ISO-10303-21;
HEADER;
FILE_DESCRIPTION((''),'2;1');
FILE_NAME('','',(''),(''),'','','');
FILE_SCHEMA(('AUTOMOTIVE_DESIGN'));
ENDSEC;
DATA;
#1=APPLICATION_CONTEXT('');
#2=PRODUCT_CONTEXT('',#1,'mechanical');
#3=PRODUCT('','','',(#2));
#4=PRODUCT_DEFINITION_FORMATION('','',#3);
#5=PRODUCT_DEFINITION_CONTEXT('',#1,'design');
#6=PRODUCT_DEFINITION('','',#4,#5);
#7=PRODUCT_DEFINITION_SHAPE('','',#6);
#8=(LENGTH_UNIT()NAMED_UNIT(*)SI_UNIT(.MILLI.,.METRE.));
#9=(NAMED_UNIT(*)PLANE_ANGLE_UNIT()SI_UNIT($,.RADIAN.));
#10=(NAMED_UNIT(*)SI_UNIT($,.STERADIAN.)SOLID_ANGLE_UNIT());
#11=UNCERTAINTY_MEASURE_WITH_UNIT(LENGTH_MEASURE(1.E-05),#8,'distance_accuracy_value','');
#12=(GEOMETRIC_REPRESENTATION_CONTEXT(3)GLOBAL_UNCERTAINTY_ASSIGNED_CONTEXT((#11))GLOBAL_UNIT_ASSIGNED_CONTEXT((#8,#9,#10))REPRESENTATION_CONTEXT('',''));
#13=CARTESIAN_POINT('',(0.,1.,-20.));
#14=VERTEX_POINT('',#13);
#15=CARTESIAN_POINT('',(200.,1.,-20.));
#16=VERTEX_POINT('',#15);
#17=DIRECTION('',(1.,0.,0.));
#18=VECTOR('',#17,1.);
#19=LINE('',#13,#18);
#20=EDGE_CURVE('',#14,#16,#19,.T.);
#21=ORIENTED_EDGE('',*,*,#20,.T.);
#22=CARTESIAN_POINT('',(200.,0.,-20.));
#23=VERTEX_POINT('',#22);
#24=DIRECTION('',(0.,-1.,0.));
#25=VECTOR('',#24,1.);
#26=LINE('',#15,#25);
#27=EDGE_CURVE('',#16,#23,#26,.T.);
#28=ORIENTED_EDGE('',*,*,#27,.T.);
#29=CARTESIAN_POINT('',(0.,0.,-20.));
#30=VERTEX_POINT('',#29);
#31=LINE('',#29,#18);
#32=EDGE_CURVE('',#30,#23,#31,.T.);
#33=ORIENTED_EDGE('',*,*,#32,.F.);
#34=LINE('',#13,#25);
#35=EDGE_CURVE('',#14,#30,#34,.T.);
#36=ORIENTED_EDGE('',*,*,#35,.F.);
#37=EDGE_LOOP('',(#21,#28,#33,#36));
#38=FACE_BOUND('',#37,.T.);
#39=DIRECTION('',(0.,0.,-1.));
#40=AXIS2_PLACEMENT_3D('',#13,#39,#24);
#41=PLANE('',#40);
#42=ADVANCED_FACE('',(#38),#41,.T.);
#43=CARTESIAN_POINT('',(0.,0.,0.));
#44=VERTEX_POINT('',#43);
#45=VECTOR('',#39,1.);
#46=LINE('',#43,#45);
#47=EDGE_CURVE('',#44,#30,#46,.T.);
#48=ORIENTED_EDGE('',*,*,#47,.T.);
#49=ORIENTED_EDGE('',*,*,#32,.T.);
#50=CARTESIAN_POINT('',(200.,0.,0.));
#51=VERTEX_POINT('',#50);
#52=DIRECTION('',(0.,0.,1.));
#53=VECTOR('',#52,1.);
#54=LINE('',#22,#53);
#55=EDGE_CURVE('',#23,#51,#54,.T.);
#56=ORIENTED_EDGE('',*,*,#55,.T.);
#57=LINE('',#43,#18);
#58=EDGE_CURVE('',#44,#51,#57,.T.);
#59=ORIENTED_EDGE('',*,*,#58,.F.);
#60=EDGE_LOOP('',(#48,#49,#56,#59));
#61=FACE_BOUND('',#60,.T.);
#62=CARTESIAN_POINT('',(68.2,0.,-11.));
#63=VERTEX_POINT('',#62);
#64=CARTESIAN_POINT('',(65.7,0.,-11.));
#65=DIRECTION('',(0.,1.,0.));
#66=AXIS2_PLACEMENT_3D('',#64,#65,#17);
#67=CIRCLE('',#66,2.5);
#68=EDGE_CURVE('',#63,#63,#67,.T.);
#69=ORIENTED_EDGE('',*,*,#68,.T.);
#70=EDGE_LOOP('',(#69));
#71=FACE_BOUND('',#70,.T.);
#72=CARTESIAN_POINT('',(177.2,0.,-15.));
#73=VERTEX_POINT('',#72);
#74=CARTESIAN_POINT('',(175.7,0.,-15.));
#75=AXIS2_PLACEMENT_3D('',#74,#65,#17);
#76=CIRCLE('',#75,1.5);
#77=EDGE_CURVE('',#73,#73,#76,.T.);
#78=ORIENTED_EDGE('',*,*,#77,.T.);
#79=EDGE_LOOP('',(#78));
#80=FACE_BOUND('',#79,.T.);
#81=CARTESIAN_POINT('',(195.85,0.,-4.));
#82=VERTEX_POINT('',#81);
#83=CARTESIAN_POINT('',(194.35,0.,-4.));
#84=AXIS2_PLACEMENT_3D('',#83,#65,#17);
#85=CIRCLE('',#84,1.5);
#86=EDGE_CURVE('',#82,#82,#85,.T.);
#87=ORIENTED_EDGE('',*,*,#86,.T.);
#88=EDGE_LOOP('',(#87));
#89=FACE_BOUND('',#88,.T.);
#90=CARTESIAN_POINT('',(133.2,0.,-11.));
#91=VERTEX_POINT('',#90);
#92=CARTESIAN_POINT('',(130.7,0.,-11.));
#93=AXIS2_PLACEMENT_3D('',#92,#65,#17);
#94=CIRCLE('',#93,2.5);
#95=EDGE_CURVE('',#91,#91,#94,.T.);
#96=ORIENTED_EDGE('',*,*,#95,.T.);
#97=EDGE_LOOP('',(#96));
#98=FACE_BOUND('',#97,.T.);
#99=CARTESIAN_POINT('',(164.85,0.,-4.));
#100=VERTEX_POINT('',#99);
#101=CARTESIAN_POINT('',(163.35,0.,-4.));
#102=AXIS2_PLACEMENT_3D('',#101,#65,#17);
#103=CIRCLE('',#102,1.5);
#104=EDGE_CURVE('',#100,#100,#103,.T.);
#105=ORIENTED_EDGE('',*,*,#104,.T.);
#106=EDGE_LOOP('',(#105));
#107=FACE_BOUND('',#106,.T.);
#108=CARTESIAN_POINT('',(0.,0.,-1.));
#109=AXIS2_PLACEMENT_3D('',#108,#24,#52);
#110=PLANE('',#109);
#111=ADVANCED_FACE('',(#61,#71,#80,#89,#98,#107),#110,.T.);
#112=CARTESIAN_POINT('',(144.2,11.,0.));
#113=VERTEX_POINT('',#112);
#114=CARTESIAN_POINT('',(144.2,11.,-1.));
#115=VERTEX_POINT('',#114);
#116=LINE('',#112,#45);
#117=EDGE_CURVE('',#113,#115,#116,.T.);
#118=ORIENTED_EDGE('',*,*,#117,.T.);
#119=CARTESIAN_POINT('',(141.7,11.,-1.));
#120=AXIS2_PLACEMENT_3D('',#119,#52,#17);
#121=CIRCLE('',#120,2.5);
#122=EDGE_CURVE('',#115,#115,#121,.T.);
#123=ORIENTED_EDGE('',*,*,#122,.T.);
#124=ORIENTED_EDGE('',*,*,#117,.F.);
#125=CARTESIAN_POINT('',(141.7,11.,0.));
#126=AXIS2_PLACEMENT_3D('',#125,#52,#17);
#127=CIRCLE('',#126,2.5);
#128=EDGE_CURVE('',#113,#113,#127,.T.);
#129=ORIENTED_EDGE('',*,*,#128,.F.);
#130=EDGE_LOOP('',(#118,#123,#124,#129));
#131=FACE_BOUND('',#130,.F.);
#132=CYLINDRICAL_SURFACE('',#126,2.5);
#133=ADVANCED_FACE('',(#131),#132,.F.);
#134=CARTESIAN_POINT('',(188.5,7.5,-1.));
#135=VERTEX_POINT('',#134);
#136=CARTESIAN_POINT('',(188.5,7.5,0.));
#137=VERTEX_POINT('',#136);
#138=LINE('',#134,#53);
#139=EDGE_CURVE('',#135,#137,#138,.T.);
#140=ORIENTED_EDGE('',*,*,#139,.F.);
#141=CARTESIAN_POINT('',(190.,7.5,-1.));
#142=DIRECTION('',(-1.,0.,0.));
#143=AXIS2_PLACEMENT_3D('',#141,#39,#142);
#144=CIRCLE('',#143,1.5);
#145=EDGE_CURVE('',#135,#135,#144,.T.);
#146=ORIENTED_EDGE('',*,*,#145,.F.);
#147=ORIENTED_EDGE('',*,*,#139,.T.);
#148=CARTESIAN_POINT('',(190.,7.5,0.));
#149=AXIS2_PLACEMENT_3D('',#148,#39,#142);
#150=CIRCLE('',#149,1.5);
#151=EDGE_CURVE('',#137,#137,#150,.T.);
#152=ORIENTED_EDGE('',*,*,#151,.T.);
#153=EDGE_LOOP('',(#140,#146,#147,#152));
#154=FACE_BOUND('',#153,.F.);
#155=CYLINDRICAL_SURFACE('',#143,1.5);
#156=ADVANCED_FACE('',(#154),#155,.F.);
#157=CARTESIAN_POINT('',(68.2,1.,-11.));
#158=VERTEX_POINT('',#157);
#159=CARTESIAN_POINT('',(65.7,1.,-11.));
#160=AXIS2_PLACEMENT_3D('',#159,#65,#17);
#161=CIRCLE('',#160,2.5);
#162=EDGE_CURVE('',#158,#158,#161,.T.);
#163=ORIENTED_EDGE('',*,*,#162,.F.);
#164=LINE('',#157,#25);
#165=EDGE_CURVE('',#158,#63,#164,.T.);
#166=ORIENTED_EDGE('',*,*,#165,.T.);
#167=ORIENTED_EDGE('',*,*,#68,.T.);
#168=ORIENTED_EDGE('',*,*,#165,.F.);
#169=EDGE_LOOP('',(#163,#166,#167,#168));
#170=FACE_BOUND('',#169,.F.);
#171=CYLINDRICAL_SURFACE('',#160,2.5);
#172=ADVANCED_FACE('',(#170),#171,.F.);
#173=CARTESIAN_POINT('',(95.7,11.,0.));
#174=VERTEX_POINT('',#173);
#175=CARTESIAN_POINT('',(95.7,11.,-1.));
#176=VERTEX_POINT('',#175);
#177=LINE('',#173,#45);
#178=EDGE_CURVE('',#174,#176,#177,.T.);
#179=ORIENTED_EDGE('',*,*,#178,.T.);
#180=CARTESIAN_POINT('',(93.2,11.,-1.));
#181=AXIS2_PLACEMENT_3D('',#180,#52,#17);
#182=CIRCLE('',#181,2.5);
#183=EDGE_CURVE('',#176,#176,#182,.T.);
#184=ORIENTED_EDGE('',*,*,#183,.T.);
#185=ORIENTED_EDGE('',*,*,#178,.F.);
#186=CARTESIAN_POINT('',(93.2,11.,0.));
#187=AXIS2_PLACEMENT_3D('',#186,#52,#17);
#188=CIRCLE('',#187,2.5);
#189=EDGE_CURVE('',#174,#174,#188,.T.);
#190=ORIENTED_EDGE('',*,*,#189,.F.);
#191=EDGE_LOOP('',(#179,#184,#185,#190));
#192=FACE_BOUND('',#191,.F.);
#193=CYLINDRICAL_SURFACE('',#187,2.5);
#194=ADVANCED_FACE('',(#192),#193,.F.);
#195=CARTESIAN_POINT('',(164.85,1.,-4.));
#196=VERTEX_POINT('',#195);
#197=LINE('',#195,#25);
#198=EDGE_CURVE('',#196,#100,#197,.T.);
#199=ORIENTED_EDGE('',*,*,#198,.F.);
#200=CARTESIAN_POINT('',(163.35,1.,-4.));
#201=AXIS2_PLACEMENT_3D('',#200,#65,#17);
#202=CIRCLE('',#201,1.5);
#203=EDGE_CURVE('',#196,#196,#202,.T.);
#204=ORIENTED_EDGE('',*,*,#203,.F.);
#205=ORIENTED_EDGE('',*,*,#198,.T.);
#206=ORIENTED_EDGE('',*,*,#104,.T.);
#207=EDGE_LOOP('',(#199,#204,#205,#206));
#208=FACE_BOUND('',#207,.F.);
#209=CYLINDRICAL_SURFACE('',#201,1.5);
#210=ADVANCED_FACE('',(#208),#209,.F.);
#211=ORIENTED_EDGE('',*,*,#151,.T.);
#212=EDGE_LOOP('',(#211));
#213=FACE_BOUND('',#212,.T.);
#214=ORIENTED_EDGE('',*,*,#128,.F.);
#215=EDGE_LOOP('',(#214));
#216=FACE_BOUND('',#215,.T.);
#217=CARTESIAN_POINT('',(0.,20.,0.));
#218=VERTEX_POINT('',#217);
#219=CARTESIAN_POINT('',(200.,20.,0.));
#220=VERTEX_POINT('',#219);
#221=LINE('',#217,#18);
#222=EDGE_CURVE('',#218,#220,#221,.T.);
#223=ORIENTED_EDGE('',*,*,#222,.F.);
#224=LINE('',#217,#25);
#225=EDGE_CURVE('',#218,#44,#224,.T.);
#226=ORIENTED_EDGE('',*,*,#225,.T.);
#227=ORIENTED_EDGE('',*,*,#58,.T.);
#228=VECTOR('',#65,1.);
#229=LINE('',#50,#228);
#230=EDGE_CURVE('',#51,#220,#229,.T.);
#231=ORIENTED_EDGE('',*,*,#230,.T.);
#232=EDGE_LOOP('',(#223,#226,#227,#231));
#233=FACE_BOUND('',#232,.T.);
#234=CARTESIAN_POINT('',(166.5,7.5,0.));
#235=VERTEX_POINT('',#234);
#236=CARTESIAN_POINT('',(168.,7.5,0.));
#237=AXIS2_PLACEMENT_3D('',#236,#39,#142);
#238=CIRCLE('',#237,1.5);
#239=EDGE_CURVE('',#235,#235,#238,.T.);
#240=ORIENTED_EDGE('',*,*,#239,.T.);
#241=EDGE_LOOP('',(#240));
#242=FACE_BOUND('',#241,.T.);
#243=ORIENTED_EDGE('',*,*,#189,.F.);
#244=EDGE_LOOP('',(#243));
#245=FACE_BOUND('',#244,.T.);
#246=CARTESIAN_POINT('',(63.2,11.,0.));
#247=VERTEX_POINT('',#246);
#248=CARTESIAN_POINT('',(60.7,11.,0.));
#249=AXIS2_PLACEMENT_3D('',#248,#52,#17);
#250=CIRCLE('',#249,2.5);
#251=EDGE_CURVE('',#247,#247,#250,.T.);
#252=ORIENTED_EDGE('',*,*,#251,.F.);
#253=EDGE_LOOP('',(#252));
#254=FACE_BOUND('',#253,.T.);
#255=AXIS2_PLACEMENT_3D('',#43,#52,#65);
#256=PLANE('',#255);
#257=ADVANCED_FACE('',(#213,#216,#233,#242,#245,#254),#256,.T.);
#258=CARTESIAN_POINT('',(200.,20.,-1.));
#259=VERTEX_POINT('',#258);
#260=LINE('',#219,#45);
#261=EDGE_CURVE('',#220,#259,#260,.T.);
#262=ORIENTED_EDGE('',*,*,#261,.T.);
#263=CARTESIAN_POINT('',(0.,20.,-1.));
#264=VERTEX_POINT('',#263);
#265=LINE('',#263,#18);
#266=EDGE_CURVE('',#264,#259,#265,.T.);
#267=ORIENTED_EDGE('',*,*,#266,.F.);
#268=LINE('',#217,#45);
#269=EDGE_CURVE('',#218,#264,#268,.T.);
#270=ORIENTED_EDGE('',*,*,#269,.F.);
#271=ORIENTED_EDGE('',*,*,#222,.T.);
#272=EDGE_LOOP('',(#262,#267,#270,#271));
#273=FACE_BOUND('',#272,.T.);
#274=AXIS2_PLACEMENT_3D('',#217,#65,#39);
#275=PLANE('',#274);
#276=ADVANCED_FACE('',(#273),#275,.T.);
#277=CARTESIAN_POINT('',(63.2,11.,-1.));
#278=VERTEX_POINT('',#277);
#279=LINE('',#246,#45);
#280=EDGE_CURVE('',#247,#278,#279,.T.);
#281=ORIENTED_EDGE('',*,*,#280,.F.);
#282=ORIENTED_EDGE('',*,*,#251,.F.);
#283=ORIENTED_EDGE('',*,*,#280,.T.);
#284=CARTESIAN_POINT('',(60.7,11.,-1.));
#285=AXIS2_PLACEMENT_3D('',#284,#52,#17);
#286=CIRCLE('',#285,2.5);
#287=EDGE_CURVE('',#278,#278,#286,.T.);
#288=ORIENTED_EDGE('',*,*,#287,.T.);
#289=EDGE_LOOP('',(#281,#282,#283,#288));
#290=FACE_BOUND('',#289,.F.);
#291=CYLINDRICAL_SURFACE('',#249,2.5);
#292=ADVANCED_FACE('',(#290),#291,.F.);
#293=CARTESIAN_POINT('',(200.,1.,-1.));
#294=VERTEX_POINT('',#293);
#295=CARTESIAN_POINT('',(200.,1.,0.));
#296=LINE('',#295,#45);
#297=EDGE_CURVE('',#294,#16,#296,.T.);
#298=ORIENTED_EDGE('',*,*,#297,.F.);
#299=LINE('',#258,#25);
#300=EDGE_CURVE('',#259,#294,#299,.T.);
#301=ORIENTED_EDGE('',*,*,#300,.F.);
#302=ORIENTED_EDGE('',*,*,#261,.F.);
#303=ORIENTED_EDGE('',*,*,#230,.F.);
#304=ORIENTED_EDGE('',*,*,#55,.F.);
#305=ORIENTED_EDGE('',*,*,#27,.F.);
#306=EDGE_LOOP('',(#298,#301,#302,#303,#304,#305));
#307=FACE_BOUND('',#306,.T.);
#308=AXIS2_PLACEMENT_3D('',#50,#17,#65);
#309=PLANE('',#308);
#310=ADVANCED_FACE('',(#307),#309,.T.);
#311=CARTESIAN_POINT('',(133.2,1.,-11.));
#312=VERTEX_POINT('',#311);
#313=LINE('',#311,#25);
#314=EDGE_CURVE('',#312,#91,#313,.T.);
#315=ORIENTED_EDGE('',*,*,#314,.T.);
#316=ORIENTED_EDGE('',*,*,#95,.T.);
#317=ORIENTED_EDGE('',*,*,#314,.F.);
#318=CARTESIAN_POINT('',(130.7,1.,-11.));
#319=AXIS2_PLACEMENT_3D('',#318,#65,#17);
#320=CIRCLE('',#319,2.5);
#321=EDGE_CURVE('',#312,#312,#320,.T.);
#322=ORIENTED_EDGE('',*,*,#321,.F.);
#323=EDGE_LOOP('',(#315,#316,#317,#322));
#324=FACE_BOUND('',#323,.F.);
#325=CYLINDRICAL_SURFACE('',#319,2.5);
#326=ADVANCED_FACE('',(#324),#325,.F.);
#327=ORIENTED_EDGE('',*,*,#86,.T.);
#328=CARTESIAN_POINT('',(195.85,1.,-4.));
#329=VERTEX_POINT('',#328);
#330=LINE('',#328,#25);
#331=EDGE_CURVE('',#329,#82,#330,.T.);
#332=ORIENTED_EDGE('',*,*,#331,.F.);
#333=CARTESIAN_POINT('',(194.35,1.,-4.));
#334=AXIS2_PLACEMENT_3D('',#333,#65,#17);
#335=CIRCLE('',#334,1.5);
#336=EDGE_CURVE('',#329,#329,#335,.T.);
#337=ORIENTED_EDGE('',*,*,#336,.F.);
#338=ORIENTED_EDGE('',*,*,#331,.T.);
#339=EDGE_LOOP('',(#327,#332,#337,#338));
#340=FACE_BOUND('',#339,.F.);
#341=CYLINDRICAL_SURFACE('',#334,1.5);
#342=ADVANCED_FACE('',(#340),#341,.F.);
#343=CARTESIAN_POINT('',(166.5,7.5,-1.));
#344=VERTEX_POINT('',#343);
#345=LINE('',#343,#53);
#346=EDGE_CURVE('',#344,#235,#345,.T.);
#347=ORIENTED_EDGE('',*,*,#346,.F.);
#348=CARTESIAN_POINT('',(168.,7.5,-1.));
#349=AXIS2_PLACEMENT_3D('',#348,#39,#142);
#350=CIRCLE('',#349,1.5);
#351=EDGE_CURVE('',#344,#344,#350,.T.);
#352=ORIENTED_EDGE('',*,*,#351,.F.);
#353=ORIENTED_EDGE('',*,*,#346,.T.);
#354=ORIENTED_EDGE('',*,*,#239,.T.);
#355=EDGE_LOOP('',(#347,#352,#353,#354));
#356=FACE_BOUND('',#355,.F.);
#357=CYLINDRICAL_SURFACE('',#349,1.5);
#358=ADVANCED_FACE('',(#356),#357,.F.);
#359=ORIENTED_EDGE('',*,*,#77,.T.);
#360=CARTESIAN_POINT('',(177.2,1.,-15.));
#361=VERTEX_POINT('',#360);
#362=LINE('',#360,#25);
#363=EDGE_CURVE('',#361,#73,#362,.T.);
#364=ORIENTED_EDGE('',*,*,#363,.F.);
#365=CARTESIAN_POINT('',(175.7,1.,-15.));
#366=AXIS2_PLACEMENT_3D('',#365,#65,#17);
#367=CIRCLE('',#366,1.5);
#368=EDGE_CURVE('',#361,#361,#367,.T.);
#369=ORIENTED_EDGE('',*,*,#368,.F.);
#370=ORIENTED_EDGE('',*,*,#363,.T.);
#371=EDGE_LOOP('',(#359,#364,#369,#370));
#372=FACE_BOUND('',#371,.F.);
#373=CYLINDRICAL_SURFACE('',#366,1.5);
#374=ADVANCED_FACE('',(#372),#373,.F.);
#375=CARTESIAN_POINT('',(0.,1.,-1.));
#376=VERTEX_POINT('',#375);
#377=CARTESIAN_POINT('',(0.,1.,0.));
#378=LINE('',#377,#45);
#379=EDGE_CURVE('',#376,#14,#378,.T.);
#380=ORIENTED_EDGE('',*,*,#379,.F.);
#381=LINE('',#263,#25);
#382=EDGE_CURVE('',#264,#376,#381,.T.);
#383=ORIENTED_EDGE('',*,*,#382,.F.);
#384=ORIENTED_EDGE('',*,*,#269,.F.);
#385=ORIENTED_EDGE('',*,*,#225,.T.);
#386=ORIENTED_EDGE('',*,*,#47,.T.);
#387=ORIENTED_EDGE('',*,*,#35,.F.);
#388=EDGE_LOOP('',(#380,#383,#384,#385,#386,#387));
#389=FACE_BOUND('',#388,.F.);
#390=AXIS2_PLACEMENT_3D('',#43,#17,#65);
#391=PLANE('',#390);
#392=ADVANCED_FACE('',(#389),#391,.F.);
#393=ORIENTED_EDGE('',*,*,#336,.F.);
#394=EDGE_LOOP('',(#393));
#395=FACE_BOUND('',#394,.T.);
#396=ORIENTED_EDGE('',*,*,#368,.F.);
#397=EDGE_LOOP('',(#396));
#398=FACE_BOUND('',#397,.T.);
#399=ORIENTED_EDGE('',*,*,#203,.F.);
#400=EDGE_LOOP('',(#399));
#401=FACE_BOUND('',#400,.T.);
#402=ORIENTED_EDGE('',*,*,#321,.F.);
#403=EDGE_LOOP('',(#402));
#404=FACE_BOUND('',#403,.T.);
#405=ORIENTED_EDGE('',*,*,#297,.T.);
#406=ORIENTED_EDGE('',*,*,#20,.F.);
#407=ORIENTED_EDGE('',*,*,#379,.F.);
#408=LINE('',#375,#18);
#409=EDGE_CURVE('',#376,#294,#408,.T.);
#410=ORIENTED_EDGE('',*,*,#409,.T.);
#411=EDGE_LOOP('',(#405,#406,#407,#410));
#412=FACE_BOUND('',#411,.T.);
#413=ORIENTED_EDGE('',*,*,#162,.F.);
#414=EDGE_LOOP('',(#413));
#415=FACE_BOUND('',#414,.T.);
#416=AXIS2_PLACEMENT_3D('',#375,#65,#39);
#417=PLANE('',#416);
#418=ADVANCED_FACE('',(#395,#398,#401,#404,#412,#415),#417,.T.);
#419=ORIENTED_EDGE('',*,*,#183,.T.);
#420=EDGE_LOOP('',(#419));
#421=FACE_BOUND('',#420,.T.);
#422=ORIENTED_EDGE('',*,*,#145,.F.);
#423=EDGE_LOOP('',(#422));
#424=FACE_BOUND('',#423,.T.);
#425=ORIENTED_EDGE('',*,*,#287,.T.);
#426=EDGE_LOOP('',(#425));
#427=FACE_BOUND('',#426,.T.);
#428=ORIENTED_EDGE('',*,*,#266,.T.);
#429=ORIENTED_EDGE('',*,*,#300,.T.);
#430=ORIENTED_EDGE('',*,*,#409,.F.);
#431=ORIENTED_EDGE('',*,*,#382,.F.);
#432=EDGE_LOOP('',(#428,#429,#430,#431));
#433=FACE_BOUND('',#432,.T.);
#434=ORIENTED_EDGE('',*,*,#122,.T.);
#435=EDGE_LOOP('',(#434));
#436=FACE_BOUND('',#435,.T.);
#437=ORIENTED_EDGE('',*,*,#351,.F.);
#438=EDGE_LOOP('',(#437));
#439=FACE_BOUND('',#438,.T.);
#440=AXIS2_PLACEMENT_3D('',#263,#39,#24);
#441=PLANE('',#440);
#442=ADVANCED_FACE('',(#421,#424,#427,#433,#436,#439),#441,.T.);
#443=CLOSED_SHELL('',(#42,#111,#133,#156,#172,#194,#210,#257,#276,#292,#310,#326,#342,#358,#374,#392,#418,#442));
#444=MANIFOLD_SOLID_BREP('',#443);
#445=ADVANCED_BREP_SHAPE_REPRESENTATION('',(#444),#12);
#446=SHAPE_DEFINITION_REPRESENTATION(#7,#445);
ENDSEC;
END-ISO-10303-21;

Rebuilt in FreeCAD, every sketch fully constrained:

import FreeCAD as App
import Part
import Sketcher

doc = App.newDocument("Part")
body = doc.addObject("PartDesign::Body", "Body")

sketch1 = body.newObject("Sketcher::SketchObject", "Sketch")
sketch1.AttachmentSupport = (doc.getObject("YZ_Plane"), [""])
sketch1.MapMode = "FlatFace"
sketch1.addGeometry([
    Part.LineSegment(App.Vector(0, 0, 0), App.Vector(0, -20, 0)),
    Part.LineSegment(App.Vector(0, -20, 0), App.Vector(1, -20, 0)),
    Part.LineSegment(App.Vector(1, -20, 0), App.Vector(1, -1, 0)),
    Part.LineSegment(App.Vector(1, -1, 0), App.Vector(20, -1, 0)),
    Part.LineSegment(App.Vector(20, -1, 0), App.Vector(20, 0, 0)),
    Part.LineSegment(App.Vector(20, 0, 0), App.Vector(0, 0, 0)),
], False)
sketch1.addConstraint([
    Sketcher.Constraint("Coincident", 0, 2, 1, 1),
    Sketcher.Constraint("Coincident", 1, 2, 2, 1),
    Sketcher.Constraint("Coincident", 2, 2, 3, 1),
    Sketcher.Constraint("Coincident", 3, 2, 4, 1),
    Sketcher.Constraint("Coincident", 4, 2, 5, 1),
    Sketcher.Constraint("Coincident", 5, 2, 0, 1),
    Sketcher.Constraint("Vertical", 0),
    Sketcher.Constraint("Horizontal", 1),
    Sketcher.Constraint("Vertical", 2),
    Sketcher.Constraint("Horizontal", 3),
    Sketcher.Constraint("Vertical", 4),
    Sketcher.Constraint("Horizontal", 5),
    Sketcher.Constraint("Coincident", 5, 2, -1, 1),
    Sketcher.Constraint("Equal", 5, 0),
    Sketcher.Constraint("Equal", 3, 2),
    Sketcher.Constraint("DistanceX", 1, 1, 1, 2, 1.0),
    Sketcher.Constraint("DistanceX", 5, 2, 5, 1, 20.0),
])
pad1 = body.newObject("PartDesign::Pad", "Pad")
pad1.Profile = sketch1
pad1.Length = 200

sketch2 = body.newObject("Sketcher::SketchObject", "Sketch001")
sketch2.AttachmentSupport = (doc.getObject("XZ_Plane"), [""])
sketch2.MapMode = "FlatFace"
sketch2.AttachmentOffset = App.Placement(App.Vector(0, 0, -1), App.Rotation())
sketch2.addGeometry([
    Part.Circle(App.Vector(194.3, -4, 0), App.Vector(0, 0, 1), 1.5),
    Part.Circle(App.Vector(163.3, -4, 0), App.Vector(0, 0, 1), 1.5),
], False)
sketch2.addConstraint([
    Sketcher.Constraint("Equal", 0, 1),
    Sketcher.Constraint("Horizontal", 0, 3, 1, 3),
    Sketcher.Constraint("Diameter", 0, 3.0),
    Sketcher.Constraint("DistanceX", 1, 3, 0, 3, 31.0),
    Sketcher.Constraint("DistanceY", 0, 3, -1, 1, 4.0),
    Sketcher.Constraint("DistanceX", -1, 1, 0, 3, 194.35),
])
pocket1 = body.newObject("PartDesign::Pocket", "Pocket")
pocket1.Profile = sketch2
pocket1.Type = "ThroughAll"
pocket1.Reversed = True

sketch3 = body.newObject("Sketcher::SketchObject", "Sketch002")
sketch3.AttachmentSupport = (doc.getObject("XY_Plane"), [""])
sketch3.MapMode = "FlatFace"
sketch3.addGeometry([
    Part.Circle(App.Vector(60.7, 11, 0), App.Vector(0, 0, 1), 2.5),
    Part.Circle(App.Vector(93.2, 11, 0), App.Vector(0, 0, 1), 2.5),
    Part.Circle(App.Vector(141.7, 11, 0), App.Vector(0, 0, 1), 2.5),
], False)
sketch3.addConstraint([
    Sketcher.Constraint("Equal", 0, 1),
    Sketcher.Constraint("Equal", 1, 2),
    Sketcher.Constraint("Horizontal", 0, 3, 1, 3),
    Sketcher.Constraint("Horizontal", 1, 3, 2, 3),
    Sketcher.Constraint("Diameter", 0, 5.0),
    Sketcher.Constraint("DistanceX", -1, 1, 0, 3, 60.7),
    Sketcher.Constraint("DistanceX", 0, 3, 1, 3, 32.5),
    Sketcher.Constraint("DistanceX", 1, 3, 2, 3, 48.5),
    Sketcher.Constraint("DistanceY", -1, 1, 0, 3, 11.0),
])
pocket2 = body.newObject("PartDesign::Pocket", "Pocket001")
pocket2.Profile = sketch3
pocket2.Type = "ThroughAll"

sketch4 = body.newObject("Sketcher::SketchObject", "Sketch003")
sketch4.AttachmentSupport = (doc.getObject("XZ_Plane"), [""])
sketch4.MapMode = "FlatFace"
sketch4.AttachmentOffset = App.Placement(App.Vector(0, 0, -1), App.Rotation())
sketch4.addGeometry([
    Part.Circle(App.Vector(65.7, -11, 0), App.Vector(0, 0, 1), 2.5),
    Part.Circle(App.Vector(130.7, -11, 0), App.Vector(0, 0, 1), 2.5),
], False)
sketch4.addConstraint([
    Sketcher.Constraint("Equal", 0, 1),
    Sketcher.Constraint("Horizontal", 0, 3, 1, 3),
    Sketcher.Constraint("Diameter", 0, 5.0),
    Sketcher.Constraint("DistanceX", 0, 3, 1, 3, 65.0),
    Sketcher.Constraint("DistanceX", -1, 1, 0, 3, 65.7),
    Sketcher.Constraint("DistanceY", 0, 3, -1, 1, 11.0),
])
pocket3 = body.newObject("PartDesign::Pocket", "Pocket002")
pocket3.Profile = sketch4
pocket3.Type = "ThroughAll"
pocket3.Reversed = True

sketch5 = body.newObject("Sketcher::SketchObject", "Sketch004")
sketch5.AttachmentSupport = (doc.getObject("XY_Plane"), [""])
sketch5.MapMode = "FlatFace"
sketch5.AttachmentOffset = App.Placement(App.Vector(0, 0, -1), App.Rotation())
sketch5.addGeometry([
    Part.Circle(App.Vector(190, 7.5, 0), App.Vector(0, 0, 1), 1.5),
    Part.Circle(App.Vector(168, 7.5, 0), App.Vector(0, 0, 1), 1.5),
], False)
sketch5.addConstraint([
    Sketcher.Constraint("Equal", 0, 1),
    Sketcher.Constraint("Horizontal", 0, 3, 1, 3),
    Sketcher.Constraint("Diameter", 0, 3.0),
    Sketcher.Constraint("DistanceX", -1, 1, 0, 3, 190.0),
    Sketcher.Constraint("DistanceX", -1, 1, 1, 3, 168.0),
    Sketcher.Constraint("DistanceY", -1, 1, 0, 3, 7.5),
])
pocket4 = body.newObject("PartDesign::Pocket", "Pocket003")
pocket4.Profile = sketch5
pocket4.Type = "ThroughAll"
pocket4.Reversed = True

sketch6 = body.newObject("Sketcher::SketchObject", "Sketch005")
sketch6.AttachmentSupport = (doc.getObject("XZ_Plane"), [""])
sketch6.MapMode = "FlatFace"
sketch6.AttachmentOffset = App.Placement(App.Vector(0, 0, -1), App.Rotation())
sketch6.addGeometry(Part.Circle(App.Vector(175.7, -15, 0), App.Vector(0, 0, 1), 1.5), False)
sketch6.addConstraint([
    Sketcher.Constraint("Diameter", 0, 3.0),
    Sketcher.Constraint("DistanceY", 0, 3, -1, 1, 15.0),
    Sketcher.Constraint("DistanceX", -1, 1, 0, 3, 175.7),
])
pocket5 = body.newObject("PartDesign::Pocket", "Pocket004")
pocket5.Profile = sketch6
pocket5.Type = "ThroughAll"
pocket5.Reversed = True

doc.recompute()
